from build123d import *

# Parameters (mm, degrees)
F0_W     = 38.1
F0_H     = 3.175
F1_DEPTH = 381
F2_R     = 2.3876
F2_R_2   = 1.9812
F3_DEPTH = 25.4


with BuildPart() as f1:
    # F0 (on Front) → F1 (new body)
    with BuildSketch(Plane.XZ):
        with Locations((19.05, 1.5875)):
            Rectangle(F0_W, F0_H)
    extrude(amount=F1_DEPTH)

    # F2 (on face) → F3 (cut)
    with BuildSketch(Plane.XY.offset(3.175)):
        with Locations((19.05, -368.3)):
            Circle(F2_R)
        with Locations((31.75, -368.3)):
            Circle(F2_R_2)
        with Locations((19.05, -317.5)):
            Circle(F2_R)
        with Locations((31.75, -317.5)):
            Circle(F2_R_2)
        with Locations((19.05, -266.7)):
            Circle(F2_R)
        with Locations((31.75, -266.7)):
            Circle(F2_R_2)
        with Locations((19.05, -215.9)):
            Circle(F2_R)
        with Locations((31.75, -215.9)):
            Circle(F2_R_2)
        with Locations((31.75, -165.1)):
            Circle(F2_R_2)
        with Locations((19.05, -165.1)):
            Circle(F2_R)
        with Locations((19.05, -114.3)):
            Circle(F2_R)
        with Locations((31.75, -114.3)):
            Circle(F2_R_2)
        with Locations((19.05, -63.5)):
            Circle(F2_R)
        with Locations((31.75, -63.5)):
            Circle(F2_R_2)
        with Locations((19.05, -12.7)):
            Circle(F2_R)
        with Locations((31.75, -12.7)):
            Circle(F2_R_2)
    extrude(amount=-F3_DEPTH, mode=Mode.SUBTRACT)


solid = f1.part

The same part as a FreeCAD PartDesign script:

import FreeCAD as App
import Part
import Sketcher
Q = App.Units.Quantity


def add_polygon(sketch, points):
    """Adds a closed chain of lines whose ends are joined by coincident constraints."""
    first, n = sketch.GeometryCount, len(points)
    for a, b in zip(points, points[1:] + points[:1]):
        sketch.addGeometry(Part.LineSegment(App.Vector(*a, 0), App.Vector(*b, 0)), False)
    for i in range(n):
        sketch.addConstraint(Sketcher.Constraint("Coincident", first + i, 2, first + (i + 1) % n, 1))

doc = App.newDocument("Part")
body = doc.addObject("PartDesign::Body", "Body")

# Sketch on XZ plane
sketch1 = body.newObject("Sketcher::SketchObject", "Sketch")
sketch1.AttachmentSupport = (doc.getObject("XZ_Plane"), [""])
sketch1.MapMode = "FlatFace"
add_polygon(sketch1, [(0, 3.2), (0, 0), (38.1, 0), (38.1, 3.2)])  # lines 0-3
sketch1.addConstraint([
    Sketcher.Constraint("Vertical", 0),
    Sketcher.Constraint("Horizontal", 1),
    Sketcher.Constraint("Vertical", 2),
    Sketcher.Constraint("Horizontal", 3),
    Sketcher.Constraint("Coincident", 0, 2, -1, 1),
    Sketcher.Constraint("DistanceX", 1, 1, 1, 2, Q("1.5 in")),
    Sketcher.Constraint("DistanceY", 0, 2, 0, 1, Q("0.125 in")),
])
pad1 = body.newObject("PartDesign::Pad", "Pad")
pad1.Profile = sketch1
pad1.Length = Q("15 in")

# Sketch on XY plane
sketch2 = body.newObject("Sketcher::SketchObject", "Sketch001")
sketch2.AttachmentSupport = (doc.getObject("XY_Plane"), [""])
sketch2.MapMode = "FlatFace"
sketch2.AttachmentOffset = App.Placement(App.Vector(0, 0, 0.125 * 25.4), App.Rotation())
sketch2.addGeometry([
    Part.Circle(App.Vector(19.1, -368.3, 0), App.Vector(0, 0, 1), 2.4),  # 0
    Part.Circle(App.Vector(31.8, -368.3, 0), App.Vector(0, 0, 1), 2),  # 1
    Part.Circle(App.Vector(19.1, -317.5, 0), App.Vector(0, 0, 1), 2.4),  # 2
    Part.Circle(App.Vector(31.8, -317.5, 0), App.Vector(0, 0, 1), 2),  # 3
    Part.Circle(App.Vector(19.1, -266.7, 0), App.Vector(0, 0, 1), 2.4),  # 4
    Part.Circle(App.Vector(31.8, -266.7, 0), App.Vector(0, 0, 1), 2),  # 5
    Part.Circle(App.Vector(19.1, -215.9, 0), App.Vector(0, 0, 1), 2.4),  # 6
    Part.Circle(App.Vector(31.8, -215.9, 0), App.Vector(0, 0, 1), 2),  # 7
    Part.Circle(App.Vector(31.8, -165.1, 0), App.Vector(0, 0, 1), 2),  # 8
    Part.Circle(App.Vector(19.1, -165.1, 0), App.Vector(0, 0, 1), 2.4),  # 9
    Part.Circle(App.Vector(19.1, -114.3, 0), App.Vector(0, 0, 1), 2.4),  # 10
    Part.Circle(App.Vector(31.8, -114.3, 0), App.Vector(0, 0, 1), 2),  # 11
    Part.Circle(App.Vector(19.1, -63.5, 0), App.Vector(0, 0, 1), 2.4),  # 12
    Part.Circle(App.Vector(31.8, -63.5, 0), App.Vector(0, 0, 1), 2),  # 13
    Part.Circle(App.Vector(19.1, -12.7, 0), App.Vector(0, 0, 1), 2.4),  # 14
    Part.Circle(App.Vector(31.8, -12.7, 0), App.Vector(0, 0, 1), 2),  # 15
], False)
sketch2.addConstraint([
    Sketcher.Constraint("Equal", 0, 2),
    Sketcher.Constraint("Equal", 1, 3),
    Sketcher.Constraint("Equal", 2, 4),
    Sketcher.Constraint("Equal", 3, 5),
    Sketcher.Constraint("Equal", 4, 6),
    Sketcher.Constraint("Equal", 5, 7),
    Sketcher.Constraint("Equal", 7, 8),
    Sketcher.Constraint("Equal", 6, 9),
    Sketcher.Constraint("Equal", 9, 10),
    Sketcher.Constraint("Equal", 8, 11),
    Sketcher.Constraint("Equal", 10, 12),
    Sketcher.Constraint("Equal", 11, 13),
    Sketcher.Constraint("Equal", 12, 14),
    Sketcher.Constraint("Equal", 13, 15),
    Sketcher.Constraint("Horizontal", 0, 3, 1, 3),
    Sketcher.Constraint("Horizontal", 2, 3, 3, 3),
    Sketcher.Constraint("Horizontal", 4, 3, 5, 3),
    Sketcher.Constraint("Horizontal", 6, 3, 7, 3),
    Sketcher.Constraint("Horizontal", 8, 3, 9, 3),
    Sketcher.Constraint("Horizontal", 10, 3, 11, 3),
    Sketcher.Constraint("Horizontal", 12, 3, 13, 3),
    Sketcher.Constraint("Horizontal", 14, 3, 15, 3),
    Sketcher.Constraint("Vertical", 0, 3, 2, 3),
    Sketcher.Constraint("Vertical", 1, 3, 3, 3),
    Sketcher.Constraint("Vertical", 2, 3, 4, 3),
    Sketcher.Constraint("Vertical", 3, 3, 5, 3),
    Sketcher.Constraint("Vertical", 4, 3, 6, 3),
    Sketcher.Constraint("Vertical", 5, 3, 7, 3),
    Sketcher.Constraint("Vertical", 7, 3, 8, 3),
    Sketcher.Constraint("Vertical", 6, 3, 9, 3),
    Sketcher.Constraint("Vertical", 9, 3, 10, 3),
    Sketcher.Constraint("Vertical", 8, 3, 11, 3),
    Sketcher.Constraint("Vertical", 10, 3, 12, 3),
    Sketcher.Constraint("Vertical", 11, 3, 13, 3),
    Sketcher.Constraint("Vertical", 12, 3, 14, 3),
    Sketcher.Constraint("Vertical", 13, 3, 15, 3),
    Sketcher.Constraint("Diameter", 0, Q("0.188 in")),
    Sketcher.Constraint("Diameter", 1, Q("0.156 in")),
    Sketcher.Constraint("DistanceY", 0, 3, 2, 3, Q("2 in")),
    Sketcher.Constraint("DistanceY", 2, 3, 4, 3, Q("2 in")),
    Sketcher.Constraint("DistanceY", 4, 3, 6, 3, Q("2 in")),
    Sketcher.Constraint("DistanceY", 7, 3, 8, 3, Q("2 in")),
    Sketcher.Constraint("DistanceY", 9, 3, 10, 3, Q("2 in")),
    Sketcher.Constraint("DistanceY", 10, 3, 12, 3, Q("2 in")),
    Sketcher.Constraint("DistanceY", 12, 3, 14, 3, Q("2 in")),
    Sketcher.Constraint("DistanceY", 0, 3, -1, 1, Q("14.5 in")),
    Sketcher.Constraint("DistanceX", 0, 3, 1, 3, Q("0.5 in")),
    Sketcher.Constraint("DistanceX", -1, 1, 0, 3, Q("0.75 in")),
])
pocket1 = body.newObject("PartDesign::Pocket", "Pocket")
pocket1.Profile = sketch2
pocket1.Length = Q("1 in")

doc.recompute()
